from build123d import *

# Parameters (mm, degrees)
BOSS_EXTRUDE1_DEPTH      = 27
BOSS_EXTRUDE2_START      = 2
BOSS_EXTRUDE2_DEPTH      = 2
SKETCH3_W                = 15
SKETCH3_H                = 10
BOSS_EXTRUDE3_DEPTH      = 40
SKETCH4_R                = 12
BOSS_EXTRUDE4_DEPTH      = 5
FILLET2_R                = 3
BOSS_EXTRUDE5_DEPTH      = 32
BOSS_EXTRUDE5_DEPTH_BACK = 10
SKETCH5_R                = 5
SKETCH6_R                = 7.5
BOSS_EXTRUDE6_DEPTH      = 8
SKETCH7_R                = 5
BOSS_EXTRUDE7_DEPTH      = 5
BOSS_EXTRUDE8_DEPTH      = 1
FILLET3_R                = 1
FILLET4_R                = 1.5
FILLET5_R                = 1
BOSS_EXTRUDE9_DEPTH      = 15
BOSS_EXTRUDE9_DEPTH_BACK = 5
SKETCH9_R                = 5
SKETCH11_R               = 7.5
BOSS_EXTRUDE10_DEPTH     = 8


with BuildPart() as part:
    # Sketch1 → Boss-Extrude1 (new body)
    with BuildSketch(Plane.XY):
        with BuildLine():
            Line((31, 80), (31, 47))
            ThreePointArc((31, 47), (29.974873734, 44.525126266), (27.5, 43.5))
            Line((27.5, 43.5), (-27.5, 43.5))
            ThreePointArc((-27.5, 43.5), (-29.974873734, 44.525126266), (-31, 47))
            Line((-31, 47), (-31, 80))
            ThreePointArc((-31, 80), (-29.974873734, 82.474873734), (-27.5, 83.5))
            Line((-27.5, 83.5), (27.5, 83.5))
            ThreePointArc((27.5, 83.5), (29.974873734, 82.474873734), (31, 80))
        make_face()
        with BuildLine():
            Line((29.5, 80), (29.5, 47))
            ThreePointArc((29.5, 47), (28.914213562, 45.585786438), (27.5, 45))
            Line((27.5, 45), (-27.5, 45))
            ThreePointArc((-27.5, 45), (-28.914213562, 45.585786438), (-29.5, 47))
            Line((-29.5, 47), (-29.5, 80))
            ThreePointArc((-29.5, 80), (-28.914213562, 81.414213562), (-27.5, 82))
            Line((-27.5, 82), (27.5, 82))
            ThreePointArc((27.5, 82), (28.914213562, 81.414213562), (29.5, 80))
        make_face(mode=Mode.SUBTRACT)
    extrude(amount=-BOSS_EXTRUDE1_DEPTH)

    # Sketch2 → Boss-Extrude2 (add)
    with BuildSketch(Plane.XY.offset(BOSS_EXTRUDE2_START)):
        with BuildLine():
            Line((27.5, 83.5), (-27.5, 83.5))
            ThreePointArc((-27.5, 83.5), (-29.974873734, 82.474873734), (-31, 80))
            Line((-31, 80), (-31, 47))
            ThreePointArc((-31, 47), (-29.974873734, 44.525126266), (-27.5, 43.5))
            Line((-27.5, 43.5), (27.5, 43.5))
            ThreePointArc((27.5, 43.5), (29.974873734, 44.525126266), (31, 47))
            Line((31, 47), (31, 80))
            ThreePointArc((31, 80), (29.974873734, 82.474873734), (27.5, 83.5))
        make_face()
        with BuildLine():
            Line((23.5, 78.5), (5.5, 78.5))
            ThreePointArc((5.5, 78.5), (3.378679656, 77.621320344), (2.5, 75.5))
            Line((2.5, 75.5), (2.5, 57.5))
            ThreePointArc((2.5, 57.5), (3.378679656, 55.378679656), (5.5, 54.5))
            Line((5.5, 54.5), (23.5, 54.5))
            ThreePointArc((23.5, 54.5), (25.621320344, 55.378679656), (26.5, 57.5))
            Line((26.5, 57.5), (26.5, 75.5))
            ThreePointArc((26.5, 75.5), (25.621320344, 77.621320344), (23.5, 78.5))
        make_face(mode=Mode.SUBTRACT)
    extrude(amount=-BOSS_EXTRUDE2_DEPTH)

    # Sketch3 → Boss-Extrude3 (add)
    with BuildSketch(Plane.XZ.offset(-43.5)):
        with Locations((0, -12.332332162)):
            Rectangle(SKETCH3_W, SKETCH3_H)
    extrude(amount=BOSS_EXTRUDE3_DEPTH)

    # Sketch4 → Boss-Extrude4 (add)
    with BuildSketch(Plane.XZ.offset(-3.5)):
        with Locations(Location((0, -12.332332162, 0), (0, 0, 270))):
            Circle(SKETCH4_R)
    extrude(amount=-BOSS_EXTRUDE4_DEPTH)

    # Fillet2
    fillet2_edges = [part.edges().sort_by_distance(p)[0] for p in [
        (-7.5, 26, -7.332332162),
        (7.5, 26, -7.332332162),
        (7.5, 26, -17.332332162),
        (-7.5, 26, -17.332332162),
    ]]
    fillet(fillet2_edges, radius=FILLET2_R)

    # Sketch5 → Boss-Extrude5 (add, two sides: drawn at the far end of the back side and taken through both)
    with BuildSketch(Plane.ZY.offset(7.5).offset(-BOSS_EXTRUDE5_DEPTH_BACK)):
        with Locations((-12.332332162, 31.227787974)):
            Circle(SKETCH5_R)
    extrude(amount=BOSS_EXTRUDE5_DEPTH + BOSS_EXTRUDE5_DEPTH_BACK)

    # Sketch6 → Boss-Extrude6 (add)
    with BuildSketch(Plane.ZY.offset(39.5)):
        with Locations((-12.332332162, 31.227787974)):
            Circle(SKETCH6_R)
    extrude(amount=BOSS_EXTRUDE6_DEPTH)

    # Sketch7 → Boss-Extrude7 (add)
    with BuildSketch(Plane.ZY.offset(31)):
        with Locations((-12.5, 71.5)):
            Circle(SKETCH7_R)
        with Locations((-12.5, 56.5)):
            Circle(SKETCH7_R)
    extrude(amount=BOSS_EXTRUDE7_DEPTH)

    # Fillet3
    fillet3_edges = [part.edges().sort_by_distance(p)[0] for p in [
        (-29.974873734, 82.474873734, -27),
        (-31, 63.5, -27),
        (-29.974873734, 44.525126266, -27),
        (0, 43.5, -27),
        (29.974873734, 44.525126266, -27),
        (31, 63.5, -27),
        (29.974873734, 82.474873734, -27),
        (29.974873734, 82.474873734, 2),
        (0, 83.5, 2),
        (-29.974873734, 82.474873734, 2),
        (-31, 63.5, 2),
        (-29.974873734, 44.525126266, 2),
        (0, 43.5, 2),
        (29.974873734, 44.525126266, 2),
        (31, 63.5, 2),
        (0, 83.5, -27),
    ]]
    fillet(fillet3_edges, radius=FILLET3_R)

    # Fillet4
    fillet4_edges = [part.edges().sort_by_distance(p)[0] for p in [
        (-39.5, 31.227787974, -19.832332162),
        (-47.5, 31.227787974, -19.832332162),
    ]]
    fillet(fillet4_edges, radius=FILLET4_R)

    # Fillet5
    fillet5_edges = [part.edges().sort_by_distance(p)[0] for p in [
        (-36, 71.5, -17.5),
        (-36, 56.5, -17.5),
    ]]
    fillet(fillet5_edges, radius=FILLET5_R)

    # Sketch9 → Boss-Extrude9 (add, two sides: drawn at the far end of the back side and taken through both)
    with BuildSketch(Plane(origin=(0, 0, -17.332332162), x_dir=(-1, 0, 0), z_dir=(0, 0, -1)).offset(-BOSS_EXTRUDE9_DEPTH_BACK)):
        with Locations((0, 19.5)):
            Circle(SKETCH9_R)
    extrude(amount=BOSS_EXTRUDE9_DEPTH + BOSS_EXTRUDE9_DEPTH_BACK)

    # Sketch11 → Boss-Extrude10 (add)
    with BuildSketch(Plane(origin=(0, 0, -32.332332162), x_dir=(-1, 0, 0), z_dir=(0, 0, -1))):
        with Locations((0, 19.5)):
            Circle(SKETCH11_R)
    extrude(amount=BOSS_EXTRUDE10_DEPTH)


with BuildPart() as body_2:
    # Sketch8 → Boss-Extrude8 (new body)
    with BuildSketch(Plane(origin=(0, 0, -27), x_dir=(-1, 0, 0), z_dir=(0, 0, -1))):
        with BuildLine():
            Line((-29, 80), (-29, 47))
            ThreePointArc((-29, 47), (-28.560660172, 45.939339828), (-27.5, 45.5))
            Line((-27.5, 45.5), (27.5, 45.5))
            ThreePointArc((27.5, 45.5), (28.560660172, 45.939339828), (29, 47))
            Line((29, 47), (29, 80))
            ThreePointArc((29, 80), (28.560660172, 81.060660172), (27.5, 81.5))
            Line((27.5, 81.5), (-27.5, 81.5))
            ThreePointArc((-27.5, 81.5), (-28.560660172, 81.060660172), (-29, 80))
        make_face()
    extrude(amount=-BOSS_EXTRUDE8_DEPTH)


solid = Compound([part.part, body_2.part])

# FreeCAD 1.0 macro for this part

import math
import FreeCAD as App
import Part
import Sketcher

V = App.Vector
Q = App.Units.Quantity


def edges_at(feature, points):
    """Names of the edges that pass closest to the given points."""
    edges = feature.Shape.Edges
    near = lambda p: min(range(len(edges)), key=lambda i: edges[i].distToShape(Part.Vertex(*p))[0])
    return sorted({f"Edge{near(p) + 1}" for p in points})

doc = App.newDocument("Part")
body = doc.addObject("PartDesign::Body", "Body")

sketch1 = doc.addObject("Sketcher::SketchObject", "Sketch")
body.addObject(sketch1)
sketch1.AttachmentSupport = (doc.XY_Plane, [""])
sketch1.MapMode = "FlatFace"
sketch1.addGeometry([
    Part.LineSegment(V(31, 47, 0), V(31, 80, 0)),
    Part.ArcOfCircle(Part.Circle(V(27.5, 80, 0), V(0, 0, 1), 3.5), math.radians(0), math.radians(90)),
    Part.LineSegment(V(27.5, 83.5, 0), V(-27.5, 83.5, 0)),
    Part.ArcOfCircle(Part.Circle(V(-27.5, 80, 0), V(0, 0, 1), 3.5), math.radians(90), math.radians(180)),
    Part.LineSegment(V(-31, 80, 0), V(-31, 47, 0)),
    Part.ArcOfCircle(Part.Circle(V(-27.5, 47, 0), V(0, 0, 1), 3.5), math.radians(-180), math.radians(-90)),
    Part.LineSegment(V(-27.5, 43.5, 0), V(27.5, 43.5, 0)),
    Part.ArcOfCircle(Part.Circle(V(27.5, 47, 0), V(0, 0, 1), 3.5), math.radians(-90), math.radians(0)),
    Part.LineSegment(V(29.5, 80, 0), V(29.5, 47, 0)),
    Part.ArcOfCircle(Part.Circle(V(27.5, 47, 0), V(0, 0, 1), 2), math.radians(-90), math.radians(0)),
    Part.LineSegment(V(27.5, 45, 0), V(-27.5, 45, 0)),
    Part.ArcOfCircle(Part.Circle(V(-27.5, 47, 0), V(0, 0, 1), 2), math.radians(-180), math.radians(-90)),
    Part.LineSegment(V(-29.5, 47, 0), V(-29.5, 80, 0)),
    Part.ArcOfCircle(Part.Circle(V(-27.5, 80, 0), V(0, 0, 1), 2), math.radians(90), math.radians(180)),
    Part.LineSegment(V(-27.5, 82, 0), V(27.5, 82, 0)),
    Part.ArcOfCircle(Part.Circle(V(27.5, 80, 0), V(0, 0, 1), 2), math.radians(0), math.radians(90)),
], False)
sketch1.addConstraint([
    Sketcher.Constraint("Tangent", 0, 2, 1, 1),
    Sketcher.Constraint("Tangent", 1, 2, 2, 1),
    Sketcher.Constraint("Tangent", 2, 2, 3, 1),
    Sketcher.Constraint("Tangent", 3, 2, 4, 1),
    Sketcher.Constraint("Tangent", 4, 2, 5, 1),
    Sketcher.Constraint("Tangent", 5, 2, 6, 1),
    Sketcher.Constraint("Tangent", 6, 2, 7, 1),
    Sketcher.Constraint("Tangent", 7, 2, 0, 1),
    Sketcher.Constraint("Tangent", 8, 2, 9, 2),
    Sketcher.Constraint("Tangent", 9, 1, 10, 1),
    Sketcher.Constraint("Tangent", 10, 2, 11, 2),
    Sketcher.Constraint("Tangent", 11, 1, 12, 1),
    Sketcher.Constraint("Tangent", 12, 2, 13, 2),
    Sketcher.Constraint("Tangent", 13, 1, 14, 1),
    Sketcher.Constraint("Tangent", 14, 2, 15, 2),
    Sketcher.Constraint("Tangent", 15, 1, 8, 1),
    Sketcher.Constraint("Vertical", 0),
    Sketcher.Constraint("Horizontal", 2),
    Sketcher.Constraint("Vertical", 4),
    Sketcher.Constraint("Horizontal", 6),
    Sketcher.Constraint("Vertical", 8),
    Sketcher.Constraint("Horizontal", 10),
    Sketcher.Constraint("Vertical", 12),
    Sketcher.Constraint("Horizontal", 14),
    Sketcher.Constraint("Coincident", 9, 3, 7, 3),
    Sketcher.Constraint("Coincident", 11, 3, 5, 3),
    Sketcher.Constraint("Coincident", 13, 3, 3, 3),
    Sketcher.Constraint("Equal", 1, 3),
    Sketcher.Constraint("Equal", 3, 5),
    Sketcher.Constraint("Equal", 5, 7),
    Sketcher.Constraint("Equal", 13, 15),
    Sketcher.Constraint("Radius", 9, Q("2 mm")),
    Sketcher.Constraint("Radius", 1, Q("3.5 mm")),
    Sketcher.Constraint("DistanceX", 2, 2, 2, 1, Q("55 mm")),
    Sketcher.Constraint("DistanceY", 0, 1, 0, 2, Q("33 mm")),
    Sketcher.Constraint("DistanceY", -1, 1, 1, 3, Q("80 mm")),
    Sketcher.Constraint("DistanceX", -1, 1, 0, 2, Q("31 mm")),
])
pad1 = doc.addObject("PartDesign::Pad", "Pad")
body.addObject(pad1)
pad1.Profile = sketch1
pad1.Length = 27
pad1.Reversed = True

sketch2 = doc.addObject("Sketcher::SketchObject", "Sketch001")
body.addObject(sketch2)
sketch2.AttachmentSupport = (doc.XY_Plane, [""])
sketch2.MapMode = "FlatFace"
sketch2.AttachmentOffset = App.Placement(V(0, 0, 2), App.Rotation())
sketch2.addGeometry([
    Part.LineSegment(V(27.5, 83.5, 0), V(-27.5, 83.5, 0)),
    Part.ArcOfCircle(Part.Circle(V(-27.5, 80, 0), V(0, 0, 1), 3.5), math.radians(90), math.radians(180)),
    Part.LineSegment(V(-31, 80, 0), V(-31, 47, 0)),
    Part.ArcOfCircle(Part.Circle(V(-27.5, 47, 0), V(0, 0, 1), 3.5), math.radians(-180), math.radians(-90)),
    Part.LineSegment(V(-27.5, 43.5, 0), V(27.5, 43.5, 0)),
    Part.ArcOfCircle(Part.Circle(V(27.5, 47, 0), V(0, 0, 1), 3.5), math.radians(-90), math.radians(0)),
    Part.LineSegment(V(31, 47, 0), V(31, 80, 0)),
    Part.ArcOfCircle(Part.Circle(V(27.5, 80, 0), V(0, 0, 1), 3.5), math.radians(0), math.radians(90)),
    Part.LineSegment(V(5.5, 78.5, 0), V(23.5, 78.5, 0)),
    Part.ArcOfCircle(Part.Circle(V(23.5, 75.5, 0), V(0, 0, 1), 3), math.radians(0), math.radians(90)),
    Part.LineSegment(V(26.5, 75.5, 0), V(26.5, 57.5, 0)),
    Part.ArcOfCircle(Part.Circle(V(23.5, 57.5, 0), V(0, 0, 1), 3), math.radians(-90), math.radians(0)),
    Part.LineSegment(V(23.5, 54.5, 0), V(5.5, 54.5, 0)),
    Part.ArcOfCircle(Part.Circle(V(5.5, 57.5, 0), V(0, 0, 1), 3), math.radians(180), math.radians(270)),
    Part.LineSegment(V(2.5, 57.5, 0), V(2.5, 75.5, 0)),
    Part.ArcOfCircle(Part.Circle(V(5.5, 75.5, 0), V(0, 0, 1), 3), math.radians(90), math.radians(180)),
], False)
sketch2.addConstraint([
    Sketcher.Constraint("Tangent", 0, 2, 1, 1),
    Sketcher.Constraint("Tangent", 1, 2, 2, 1),
    Sketcher.Constraint("Tangent", 2, 2, 3, 1),
    Sketcher.Constraint("Tangent", 3, 2, 4, 1),
    Sketcher.Constraint("Tangent", 4, 2, 5, 1),
    Sketcher.Constraint("Tangent", 5, 2, 6, 1),
    Sketcher.Constraint("Tangent", 6, 2, 7, 1),
    Sketcher.Constraint("Tangent", 7, 2, 0, 1),
    Sketcher.Constraint("Tangent", 8, 2, 9, 2),
    Sketcher.Constraint("Tangent", 9, 1, 10, 1),
    Sketcher.Constraint("Tangent", 10, 2, 11, 2),
    Sketcher.Constraint("Tangent", 11, 1, 12, 1),
    Sketcher.Constraint("Tangent", 12, 2, 13, 2),
    Sketcher.Constraint("Tangent", 13, 1, 14, 1),
    Sketcher.Constraint("Tangent", 14, 2, 15, 2),
    Sketcher.Constraint("Tangent", 15, 1, 8, 1),
    Sketcher.Constraint("Horizontal", 0),
    Sketcher.Constraint("Vertical", 2),
    Sketcher.Constraint("Horizontal", 4),
    Sketcher.Constraint("Vertical", 6),
    Sketcher.Constraint("Horizontal", 8),
    Sketcher.Constraint("Vertical", 10),
    Sketcher.Constraint("Horizontal", 12),
    Sketcher.Constraint("Vertical", 14),
    Sketcher.Constraint("Equal", 1, 3),
    Sketcher.Constraint("Equal", 3, 5),
    Sketcher.Constraint("Equal", 5, 7),
    Sketcher.Constraint("Equal", 9, 11),
    Sketcher.Constraint("Equal", 11, 13),
    Sketcher.Constraint("Equal", 13, 15),
    Sketcher.Constraint("Equal", 12, 10),
    Sketcher.Constraint("Radius", 9, Q("3 mm")),
    Sketcher.Constraint("Radius", 1, Q("3.5 mm")),
    Sketcher.Constraint("DistanceX", 0, 2, 0, 1, Q("55 mm")),
    Sketcher.Constraint("DistanceX", 8, 1, 8, 2, Q("18 mm")),
    Sketcher.Constraint("DistanceY", 2, 2, 2, 1, Q("33 mm")),
    Sketcher.Constraint("DistanceY", -1, 1, 1, 3, Q("80 mm")),
    Sketcher.Constraint("DistanceX", 1, 2, -1, 1, Q("31 mm")),
    Sketcher.Constraint("DistanceX", 9, 3, 7, 3, Q("4 mm")),
    Sketcher.Constraint("DistanceY", 15, 3, 0, 2, Q("8 mm")),
])
pad2 = doc.addObject("PartDesign::Pad", "Pad001")
body.addObject(pad2)
pad2.Profile = sketch2
pad2.Length = 2
pad2.Reversed = True

sketch3 = doc.addObject("Sketcher::SketchObject", "Sketch002")
body.addObject(sketch3)
sketch3.AttachmentSupport = (doc.XZ_Plane, [""])
sketch3.MapMode = "FlatFace"
sketch3.AttachmentOffset = App.Placement(V(0, 0, -43.5), App.Rotation())
sketch3.addGeometry([
    Part.LineSegment(V(-7.5, -7.332332, 0), V(-7.5, -17.332332, 0)),
    Part.LineSegment(V(-7.5, -17.332332, 0), V(7.5, -17.332332, 0)),
    Part.LineSegment(V(7.5, -17.332332, 0), V(7.5, -7.332332, 0)),
    Part.LineSegment(V(7.5, -7.332332, 0), V(-7.5, -7.332332, 0)),
], False)
sketch3.addConstraint([
    Sketcher.Constraint("Coincident", 0, 2, 1, 1),
    Sketcher.Constraint("Coincident", 1, 2, 2, 1),
    Sketcher.Constraint("Coincident", 2, 2, 3, 1),
    Sketcher.Constraint("Coincident", 3, 2, 0, 1),
    Sketcher.Constraint("Vertical", 0),
    Sketcher.Constraint("Horizontal", 1),
    Sketcher.Constraint("Vertical", 2),
    Sketcher.Constraint("Horizontal", 3),
    Sketcher.Constraint("DistanceX", 1, 1, 1, 2, Q("15 mm")),
    Sketcher.Constraint("DistanceY", 0, 2, 0, 1, Q("10 mm")),
    Sketcher.Constraint("DistanceX", 0, 2, -1, 1, Q("7.5 mm")),
    Sketcher.Constraint("DistanceY", 0, 2, -1, 1, Q("17.332332 mm")),
])
pad3 = doc.addObject("PartDesign::Pad", "Pad002")
body.addObject(pad3)
pad3.Profile = sketch3
pad3.Length = 40

sketch4 = doc.addObject("Sketcher::SketchObject", "Sketch003")
body.addObject(sketch4)
sketch4.AttachmentSupport = (doc.XZ_Plane, [""])
sketch4.MapMode = "FlatFace"
sketch4.AttachmentOffset = App.Placement(V(0, 0, -3.5), App.Rotation())
sketch4.addGeometry(Part.Circle(V(0, -12.332332, 0), V(0, 0, 1), 12), False)
sketch4.addConstraint([
    Sketcher.Constraint("PointOnObject", 0, 3, -2),
    Sketcher.Constraint("Diameter", 0, Q("24 mm")),
    Sketcher.Constraint("DistanceY", 0, 3, -1, 1, Q("12.332332 mm")),
])
pad4 = doc.addObject("PartDesign::Pad", "Pad003")
body.addObject(pad4)
pad4.Profile = sketch4
pad4.Length = 5
pad4.Reversed = True
doc.recompute()

fillet = doc.addObject("PartDesign::Fillet", "Fillet")
body.addObject(fillet)
fillet.Base = (pad4, edges_at(pad4, [
    (-7.5, 26, -7.332),
    (7.5, 26, -7.332),
    (7.5, 26, -17.332),
    (-7.5, 26, -17.332),
]))
fillet.Radius = 3

sketch5 = doc.addObject("Sketcher::SketchObject", "Sketch004")
body.addObject(sketch5)
sketch5.AttachmentSupport = (doc.YZ_Plane, [""])
sketch5.MapMode = "FlatFace"
sketch5.AttachmentOffset = App.Placement(V(0, 0, -7.5), App.Rotation())
sketch5.addGeometry(Part.Circle(V(31.227788, -12.332332, 0), V(0, 0, 1), 5), False)
sketch5.addConstraint([
    Sketcher.Constraint("Diameter", 0, Q("10 mm")),
    Sketcher.Constraint("DistanceX", -1, 1, 0, 3, Q("31.227788 mm")),
    Sketcher.Constraint("DistanceY", 0, 3, -1, 1, Q("12.332332 mm")),
])
pad5 = doc.addObject("PartDesign::Pad", "Pad004")
body.addObject(pad5)
pad5.Profile = sketch5
pad5.Type = "TwoLengths"
pad5.Length = 32
pad5.Length2 = 10
pad5.Reversed = True

sketch6 = doc.addObject("Sketcher::SketchObject", "Sketch005")
body.addObject(sketch6)
sketch6.AttachmentSupport = (doc.YZ_Plane, [""])
sketch6.MapMode = "FlatFace"
sketch6.AttachmentOffset = App.Placement(V(0, 0, -39.5), App.Rotation())
sketch6.addGeometry(Part.Circle(V(31.227788, -12.332332, 0), V(0, 0, 1), 7.5), False)
sketch6.addConstraint([
    Sketcher.Constraint("Diameter", 0, Q("15 mm")),
    Sketcher.Constraint("DistanceX", -1, 1, 0, 3, Q("31.227788 mm")),
    Sketcher.Constraint("DistanceY", 0, 3, -1, 1, Q("12.332332 mm")),
])
pad6 = doc.addObject("PartDesign::Pad", "Pad005")
body.addObject(pad6)
pad6.Profile = sketch6
pad6.Length = 8
pad6.Reversed = True

sketch7 = doc.addObject("Sketcher::SketchObject", "Sketch006")
body.addObject(sketch7)
sketch7.AttachmentSupport = (doc.YZ_Plane, [""])
sketch7.MapMode = "FlatFace"
sketch7.AttachmentOffset = App.Placement(V(0, 0, -31), App.Rotation())
sketch7.addGeometry([
    Part.Circle(V(71.5, -12.5, 0), V(0, 0, 1), 5),
    Part.Circle(V(56.5, -12.5, 0), V(0, 0, 1), 5),
], False)
sketch7.addConstraint([
    Sketcher.Constraint("Equal", 0, 1),
    Sketcher.Constraint("Horizontal", 0, 3, 1, 3),
    Sketcher.Constraint("Diameter", 0, Q("10 mm")),
    Sketcher.Constraint("DistanceX", 1, 3, 0, 3, Q("15 mm")),
    Sketcher.Constraint("DistanceX", -1, 1, 0, 3, Q("71.5 mm")),
    Sketcher.Constraint("DistanceY", 0, 3, -1, 1, Q("12.5 mm")),
])
pad7 = doc.addObject("PartDesign::Pad", "Pad006")
body.addObject(pad7)
pad7.Profile = sketch7
pad7.Length = 5
pad7.Reversed = True
doc.recompute()

fillet2 = doc.addObject("PartDesign::Fillet", "Fillet001")
body.addObject(fillet2)
fillet2.Base = (pad7, edges_at(pad7, [
    (-29.975, 82.475, -27),
    (-31, 63.5, -27),
    (-29.975, 44.525, -27),
    (0, 43.5, -27),
    (29.975, 44.525, -27),
    (31, 63.5, -27),
    (29.975, 82.475, -27),
    (29.975, 82.475, 2),
    (0, 83.5, 2),
    (-29.975, 82.475, 2),
    (-31, 63.5, 2),
    (-29.975, 44.525, 2),
    (0, 43.5, 2),
    (29.975, 44.525, 2),
    (31, 63.5, 2),
    (0, 83.5, -27),
]))
fillet2.Radius = 1
doc.recompute()

fillet3 = doc.addObject("PartDesign::Fillet", "Fillet002")
body.addObject(fillet3)
fillet3.Base = (fillet2, edges_at(fillet2, [(-39.5, 31.228, -19.832), (-47.5, 31.228, -19.832)]))
fillet3.Radius = 1.5
doc.recompute()

fillet4 = doc.addObject("PartDesign::Fillet", "Fillet003")
body.addObject(fillet4)
fillet4.Base = (fillet3, edges_at(fillet3, [(-36, 71.5, -17.5), (-36, 56.5, -17.5)]))
fillet4.Radius = 1

sketch8 = doc.addObject("Sketcher::SketchObject", "Sketch007")
body.addObject(sketch8)
sketch8.AttachmentSupport = (doc.XY_Plane, [""])
sketch8.MapMode = "FlatFace"
sketch8.AttachmentOffset = App.Placement(V(0, 0, -17.332332), App.Rotation())
sketch8.addGeometry(Part.Circle(V(0, 19.5, 0), V(0, 0, 1), 5), False)
sketch8.addConstraint([
    Sketcher.Constraint("PointOnObject", 0, 3, -2),
    Sketcher.Constraint("Diameter", 0, Q("10 mm")),
    Sketcher.Constraint("DistanceY", -1, 1, 0, 3, Q("19.5 mm")),
])
pad8 = doc.addObject("PartDesign::Pad", "Pad007")
body.addObject(pad8)
pad8.Profile = sketch8
pad8.Type = "TwoLengths"
pad8.Length = 15
pad8.Length2 = 5
pad8.Reversed = True

sketch9 = doc.addObject("Sketcher::SketchObject", "Sketch008")
body.addObject(sketch9)
sketch9.AttachmentSupport = (doc.XY_Plane, [""])
sketch9.MapMode = "FlatFace"
sketch9.AttachmentOffset = App.Placement(V(0, 0, -32.332332), App.Rotation())
sketch9.addGeometry(Part.Circle(V(0, 19.5, 0), V(0, 0, 1), 7.5), False)
sketch9.addConstraint([
    Sketcher.Constraint("PointOnObject", 0, 3, -2),
    Sketcher.Constraint("Diameter", 0, Q("15 mm")),
    Sketcher.Constraint("DistanceY", -1, 1, 0, 3, Q("19.5 mm")),
])
pad9 = doc.addObject("PartDesign::Pad", "Pad008")
body.addObject(pad9)
pad9.Profile = sketch9
pad9.Length = 8
pad9.Reversed = True
body2 = doc.addObject("PartDesign::Body", "Body001")

sketch10 = doc.addObject("Sketcher::SketchObject", "Sketch009")
body2.addObject(sketch10)
sketch10.AttachmentSupport = (doc.getObject("XY_Plane001"), [""])
sketch10.MapMode = "FlatFace"
sketch10.AttachmentOffset = App.Placement(V(0, 0, -27), App.Rotation())
sketch10.addGeometry([
    Part.LineSegment(V(29, 80, 0), V(29, 47, 0)),
    Part.ArcOfCircle(Part.Circle(V(27.5, 47, 0), V(0, 0, 1), 1.5), math.radians(-90), math.radians(0)),
    Part.LineSegment(V(27.5, 45.5, 0), V(-27.5, 45.5, 0)),
    Part.ArcOfCircle(Part.Circle(V(-27.5, 47, 0), V(0, 0, 1), 1.5), math.radians(180), math.radians(270)),
    Part.LineSegment(V(-29, 47, 0), V(-29, 80, 0)),
    Part.ArcOfCircle(Part.Circle(V(-27.5, 80, 0), V(0, 0, 1), 1.5), math.radians(90), math.radians(180)),
    Part.LineSegment(V(-27.5, 81.5, 0), V(27.5, 81.5, 0)),
    Part.ArcOfCircle(Part.Circle(V(27.5, 80, 0), V(0, 0, 1), 1.5), math.radians(0), math.radians(90)),
], False)
sketch10.addConstraint([
    Sketcher.Constraint("Tangent", 0, 2, 1, 2),
    Sketcher.Constraint("Tangent", 1, 1, 2, 1),
    Sketcher.Constraint("Tangent", 2, 2, 3, 2),
    Sketcher.Constraint("Tangent", 3, 1, 4, 1),
    Sketcher.Constraint("Tangent", 4, 2, 5, 2),
    Sketcher.Constraint("Tangent", 5, 1, 6, 1),
    Sketcher.Constraint("Tangent", 6, 2, 7, 2),
    Sketcher.Constraint("Tangent", 7, 1, 0, 1),
    Sketcher.Constraint("Vertical", 0),
    Sketcher.Constraint("Horizontal", 2),
    Sketcher.Constraint("Vertical", 4),
    Sketcher.Constraint("Horizontal", 6),
    Sketcher.Constraint("Equal", 1, 3),
    Sketcher.Constraint("Equal", 3, 5),
    Sketcher.Constraint("Equal", 5, 7),
    Sketcher.Constraint("Radius", 1, Q("1.5 mm")),
    Sketcher.Constraint("DistanceX", 2, 2, 2, 1, Q("55 mm")),
    Sketcher.Constraint("DistanceY", 0, 2, 0, 1, Q("33 mm")),
    Sketcher.Constraint("DistanceY", -1, 1, 1, 3, Q("47 mm")),
    Sketcher.Constraint("DistanceX", -1, 1, 0, 2, Q("29 mm")),
])
pad10 = doc.addObject("PartDesign::Pad", "Pad009")
body2.addObject(pad10)
pad10.Profile = sketch10
pad10.Length = 1

doc.recompute()
